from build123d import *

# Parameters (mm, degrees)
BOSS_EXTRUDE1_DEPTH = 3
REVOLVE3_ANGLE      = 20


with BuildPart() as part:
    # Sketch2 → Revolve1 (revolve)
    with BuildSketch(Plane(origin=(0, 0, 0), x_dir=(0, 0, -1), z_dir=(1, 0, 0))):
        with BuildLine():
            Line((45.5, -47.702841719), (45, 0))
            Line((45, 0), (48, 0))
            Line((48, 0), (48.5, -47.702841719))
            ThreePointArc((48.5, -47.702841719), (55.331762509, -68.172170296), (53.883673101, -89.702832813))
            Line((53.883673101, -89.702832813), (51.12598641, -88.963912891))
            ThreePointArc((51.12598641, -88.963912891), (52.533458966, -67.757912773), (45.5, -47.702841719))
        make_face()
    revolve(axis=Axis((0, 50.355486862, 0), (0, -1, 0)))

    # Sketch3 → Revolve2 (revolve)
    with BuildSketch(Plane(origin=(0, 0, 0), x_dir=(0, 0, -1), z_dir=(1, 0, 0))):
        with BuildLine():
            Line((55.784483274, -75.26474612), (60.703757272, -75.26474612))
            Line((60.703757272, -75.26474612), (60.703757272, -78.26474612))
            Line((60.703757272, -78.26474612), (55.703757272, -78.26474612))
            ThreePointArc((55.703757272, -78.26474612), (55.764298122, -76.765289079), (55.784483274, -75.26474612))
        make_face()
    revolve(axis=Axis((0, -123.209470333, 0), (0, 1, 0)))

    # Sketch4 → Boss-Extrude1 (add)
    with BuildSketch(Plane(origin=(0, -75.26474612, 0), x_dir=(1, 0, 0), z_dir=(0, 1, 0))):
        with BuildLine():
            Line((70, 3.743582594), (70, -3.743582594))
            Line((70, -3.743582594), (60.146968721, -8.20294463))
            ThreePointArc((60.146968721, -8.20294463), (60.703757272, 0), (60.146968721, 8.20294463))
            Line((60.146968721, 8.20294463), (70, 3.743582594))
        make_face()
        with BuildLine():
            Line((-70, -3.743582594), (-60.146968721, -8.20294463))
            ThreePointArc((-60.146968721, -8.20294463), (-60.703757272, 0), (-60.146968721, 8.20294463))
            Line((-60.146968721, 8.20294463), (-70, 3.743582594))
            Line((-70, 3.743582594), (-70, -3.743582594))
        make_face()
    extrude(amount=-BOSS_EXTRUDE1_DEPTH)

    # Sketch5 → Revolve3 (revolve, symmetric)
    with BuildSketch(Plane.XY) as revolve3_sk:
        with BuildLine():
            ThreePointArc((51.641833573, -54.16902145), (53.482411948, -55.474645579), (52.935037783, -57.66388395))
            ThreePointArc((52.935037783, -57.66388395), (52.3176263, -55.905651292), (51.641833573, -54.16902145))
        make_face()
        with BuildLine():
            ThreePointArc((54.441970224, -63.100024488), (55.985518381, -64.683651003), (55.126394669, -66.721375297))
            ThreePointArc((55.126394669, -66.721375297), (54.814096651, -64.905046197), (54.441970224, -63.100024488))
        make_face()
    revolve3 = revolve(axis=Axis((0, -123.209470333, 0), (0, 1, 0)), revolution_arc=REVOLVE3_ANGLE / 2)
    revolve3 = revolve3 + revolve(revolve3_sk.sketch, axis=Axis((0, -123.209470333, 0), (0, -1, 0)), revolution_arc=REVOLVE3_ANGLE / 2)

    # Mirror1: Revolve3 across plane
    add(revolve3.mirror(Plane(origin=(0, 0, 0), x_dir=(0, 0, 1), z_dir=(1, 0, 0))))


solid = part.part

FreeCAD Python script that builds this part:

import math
import FreeCAD as App
import Part
import Sketcher
from FreeCAD import Vector
Q = App.Units.Quantity

doc = App.newDocument("Part")
body = doc.addObject("PartDesign::Body", "Body")

# Sketch on YZ plane
sketch1 = body.newObject("Sketcher::SketchObject", "Sketch")
sketch1.AttachmentSupport = (doc.getObject("YZ_Plane"), [""])
sketch1.MapMode = "FlatFace"
sketch1.addGeometry([
    Part.LineSegment(Vector(0, -45, 0), Vector(-47.7, -45.5, 0)),  # 0
    Part.ArcOfCircle(Part.Circle(Vector(-74.9, 0, 0), Vector(0, 0, 1), 53), math.radians(-105), math.radians(-59)),  # 1
    Part.LineSegment(Vector(-89, -51.1, 0), Vector(-89.7, -53.9, 0)),  # 2
    Part.ArcOfCircle(Part.Circle(Vector(-75.3, 0, 0), Vector(0, 0, 1), 55.8), math.radians(-105), math.radians(-60)),  # 3
    Part.LineSegment(Vector(-47.7, -48.5, 0), Vector(0, -48, 0)),  # 4
    Part.LineSegment(Vector(0, -48, 0), Vector(0, -45, 0)),  # 5
], False)
sketch1.addConstraint([
    Sketcher.Constraint("Coincident", 0, 2, 1, 2),
    Sketcher.Constraint("Coincident", 1, 1, 2, 1),
    Sketcher.Constraint("Coincident", 2, 2, 3, 1),
    Sketcher.Constraint("Coincident", 3, 2, 4, 1),
    Sketcher.Constraint("Coincident", 4, 2, 5, 1),
    Sketcher.Constraint("Coincident", 5, 2, 0, 1),
    Sketcher.Constraint("Vertical", 5),
    Sketcher.Constraint("PointOnObject", 1, 3, -1),
    Sketcher.Constraint("PointOnObject", 3, 3, -1),
    Sketcher.Constraint("PointOnObject", 4, 2, -2),
    Sketcher.Constraint("Parallel", 0, 4),
    Sketcher.Constraint("Vertical", 0, 2, 3, 2),
    Sketcher.Constraint("DistanceY", 5, 1, 5, 2, Q("3 mm")),
    Sketcher.Constraint("Angle", 2, Q("-105 deg")),
    Sketcher.Constraint("DistanceY", 4, 2, -1, 1, Q("48 mm")),
    Sketcher.Constraint("DistanceY", 0, 2, -1, 1, Q("45.5 mm")),
    Sketcher.Constraint("Radius", 1, Q("53.01955 mm")),
    Sketcher.Constraint("Radius", 3, Q("55.784483 mm")),
    Sketcher.Constraint("DistanceX", 1, 3, -1, 1, Q("74.9209 mm")),
    Sketcher.Constraint("DistanceX", 1, 1, 0, 2, Q("41.261071 mm")),
])
revolution = body.newObject("PartDesign::Revolution", "Revolution")
revolution.Profile = sketch1
revolution.ReferenceAxis = (sketch1, ["H_Axis"])
revolution.Angle = 360

# Sketch on YZ plane
sketch2 = body.newObject("Sketcher::SketchObject", "Sketch001")
sketch2.AttachmentSupport = (doc.getObject("YZ_Plane"), [""])
sketch2.MapMode = "FlatFace"
sketch2.addGeometry([
    Part.LineSegment(Vector(-75.3, -60.7, 0), Vector(-75.3, -55.8, 0)),
    Part.ArcOfCircle(Part.Circle(Vector(-75.3, 0, 0), Vector(0, 0, 1), 55.8), math.radians(-93.08), math.radians(-90)),
    Part.LineSegment(Vector(-78.3, -55.7, 0), Vector(-78.3, -60.7, 0)),
    Part.LineSegment(Vector(-78.3, -60.7, 0), Vector(-75.3, -60.7, 0)),
], False)
sketch2.addConstraint([
    Sketcher.Constraint("Coincident", 0, 2, 1, 2),
    Sketcher.Constraint("Coincident", 1, 1, 2, 1),
    Sketcher.Constraint("Coincident", 2, 2, 3, 1),
    Sketcher.Constraint("Coincident", 3, 2, 0, 1),
    Sketcher.Constraint("Vertical", 0),
    Sketcher.Constraint("Vertical", 2),
    Sketcher.Constraint("Horizontal", 3),
    Sketcher.Constraint("PointOnObject", 1, 3, -1),
    Sketcher.Constraint("Vertical", 1, 3, 0, 2),
    Sketcher.Constraint("DistanceX", 3, 1, 3, 2, Q("3 mm")),
    Sketcher.Constraint("DistanceY", 2, 2, 2, 1, Q("5 mm")),
    Sketcher.Constraint("Radius", 1, Q("55.784483 mm")),
    Sketcher.Constraint("DistanceX", 1, 3, -1, 1, Q("75.264746 mm")),
])
revolution2 = body.newObject("PartDesign::Revolution", "Revolution001")
revolution2.Profile = sketch2
revolution2.ReferenceAxis = (sketch2, ["H_Axis"])
revolution2.Angle = 360

# Sketch on XZ plane
sketch3 = body.newObject("Sketcher::SketchObject", "Sketch002")
sketch3.AttachmentSupport = (doc.getObject("XZ_Plane"), [""])
sketch3.MapMode = "FlatFace"
sketch3.AttachmentOffset = App.Placement(Vector(0, 0, 75.264746), App.Rotation())
sketch3.addGeometry([
    Part.LineSegment(Vector(70, 4, 0), Vector(70, -4, 0)),  # 0
    Part.LineSegment(Vector(70, -4, 0), Vector(60, -8, 0)),  # 1
    Part.ArcOfCircle(Part.Circle(Vector(0, 0, 0), Vector(0, 0, 1), 61), math.radians(-7.77), math.radians(7.77)),  # 2
    Part.LineSegment(Vector(60, 8, 0), Vector(70, 4, 0)),  # 3
    Part.LineSegment(Vector(-70, 4, 0), Vector(-60, 8, 0)),  # 4
    Part.ArcOfCircle(Part.Circle(Vector(0, 0, 0), Vector(0, 0, 1), 61), math.radians(172.23), math.radians(187.77)),  # 5
    Part.LineSegment(Vector(-60, -8, 0), Vector(-70, -4, 0)),  # 6
    Part.LineSegment(Vector(-70, -4, 0), Vector(-70, 4, 0)),  # 7
], False)
sketch3.addConstraint([
    Sketcher.Constraint("Coincident", 0, 2, 1, 1),
    Sketcher.Constraint("Coincident", 1, 2, 2, 1),
    Sketcher.Constraint("Coincident", 2, 2, 3, 1),
    Sketcher.Constraint("Coincident", 3, 2, 0, 1),
    Sketcher.Constraint("Coincident", 4, 2, 5, 1),
    Sketcher.Constraint("Coincident", 5, 2, 6, 1),
    Sketcher.Constraint("Coincident", 6, 2, 7, 1),
    Sketcher.Constraint("Coincident", 7, 2, 4, 1),
    Sketcher.Constraint("Vertical", 0),
    Sketcher.Constraint("Vertical", 7),
    Sketcher.Constraint("Coincident", 2, 3, -1, 1),
    Sketcher.Constraint("Coincident", 5, 3, -1, 1),
    Sketcher.Constraint("Equal", 2, 5),
    Sketcher.Constraint("Symmetric", 3, 2, 6, 2, -1, 1),
    Sketcher.Constraint("Parallel", 1, 4),
    Sketcher.Constraint("Parallel", 3, 6),
    Sketcher.Constraint("Horizontal", 2, 2, 4, 2),
    Sketcher.Constraint("Horizontal", 1, 2, 5, 2),
    Sketcher.Constraint("Horizontal", 0, 2, 6, 2),
    Sketcher.Constraint("DistanceX", -1, 1, 0, 2, Q("70 mm")),
    Sketcher.Constraint("Radius", 2, Q("60.703757 mm")),
    Sketcher.Constraint("Distance", 1, Q("10.815181 mm")),
    Sketcher.Constraint("DistanceY", 0, 2, 0, 1, Q("7.487165 mm")),
])
pad1 = body.newObject("PartDesign::Pad", "Pad")
pad1.Profile = sketch3
pad1.Length = 3

# Sketch on XY plane
sketch4 = body.newObject("Sketcher::SketchObject", "Sketch003")
sketch4.AttachmentSupport = (doc.getObject("XY_Plane"), [""])
sketch4.MapMode = "FlatFace"
sketch4.addGeometry([
    Part.ArcOfCircle(Part.Circle(Vector(51.6, -56.2, 0), Vector(0, 0, 1), 2), math.radians(-48), math.radians(89)),
    Part.ArcOfCircle(Part.Circle(Vector(0, -75.3, 0), Vector(0, 0, 1), 55.8), math.radians(18.39), math.radians(22.22)),
    Part.ArcOfCircle(Part.Circle(Vector(54, -65.1, 0), Vector(0, 0, 1), 2), math.radians(-56), math.radians(78)),
    Part.ArcOfCircle(Part.Circle(Vector(0, -75.3, 0), Vector(0, 0, 1), 55.8), math.radians(8.81), math.radians(12.6)),
], False)
sketch4.addConstraint([
    Sketcher.Constraint("Coincident", 0, 1, 1, 1),
    Sketcher.Constraint("Coincident", 1, 2, 0, 2),
    Sketcher.Constraint("Coincident", 2, 1, 3, 1),
    Sketcher.Constraint("Coincident", 3, 2, 2, 2),
    Sketcher.Constraint("Coincident", 3, 3, 1, 3),
    Sketcher.Constraint("Equal", 0, 2),
    Sketcher.Constraint("PointOnObject", 1, 3, -2),
    Sketcher.Constraint("Radius", 0, Q("2 mm")),
    Sketcher.Constraint("Radius", 1, Q("55.784482 mm")),
    Sketcher.Constraint("Radius", 3, Q("55.784485 mm")),
    Sketcher.Constraint("DistanceX", -1, 1, 2, 3, Q("54.020309 mm")),
    Sketcher.Constraint("DistanceY", 2, 3, -1, 1, Q("65.05507 mm")),
    Sketcher.Constraint("DistanceY", 1, 2, -1, 1, Q("54.169021 mm")),
    Sketcher.Constraint("DistanceX", -1, 1, 3, 2, Q("54.44197 mm")),
    Sketcher.Constraint("DistanceX", 0, 3, 0, 1, Q("1.328331 mm")),
])
revolution3 = body.newObject("PartDesign::Revolution", "Revolution002")
revolution3.Profile = sketch4
revolution3.ReferenceAxis = (sketch4, ["V_Axis"])
revolution3.Angle = 10

# Sketch on XY plane
sketch5 = body.newObject("Sketcher::SketchObject", "Sketch004")
sketch5.AttachmentSupport = (doc.getObject("XY_Plane"), [""])
sketch5.MapMode = "FlatFace"
sketch5.addGeometry([
    Part.ArcOfCircle(Part.Circle(Vector(51.6, -56.2, 0), Vector(0, 0, 1), 2), math.radians(-48), math.radians(89)),
    Part.ArcOfCircle(Part.Circle(Vector(0, -75.3, 0), Vector(0, 0, 1), 55.8), math.radians(18.39), math.radians(22.22)),
    Part.ArcOfCircle(Part.Circle(Vector(54, -65.1, 0), Vector(0, 0, 1), 2), math.radians(-56), math.radians(78)),
    Part.ArcOfCircle(Part.Circle(Vector(0, -75.3, 0), Vector(0, 0, 1), 55.8), math.radians(8.81), math.radians(12.6)),
], False)
sketch5.addConstraint([
    Sketcher.Constraint("Coincident", 0, 1, 1, 1),
    Sketcher.Constraint("Coincident", 1, 2, 0, 2),
    Sketcher.Constraint("Coincident", 2, 1, 3, 1),
    Sketcher.Constraint("Coincident", 3, 2, 2, 2),
    Sketcher.Constraint("Coincident", 3, 3, 1, 3),
    Sketcher.Constraint("Equal", 0, 2),
    Sketcher.Constraint("PointOnObject", 1, 3, -2),
    Sketcher.Constraint("Radius", 0, Q("2 mm")),
    Sketcher.Constraint("Radius", 1, Q("55.784482 mm")),
    Sketcher.Constraint("Radius", 3, Q("55.784485 mm")),
    Sketcher.Constraint("DistanceX", -1, 1, 2, 3, Q("54.020309 mm")),
    Sketcher.Constraint("DistanceY", 2, 3, -1, 1, Q("65.05507 mm")),
    Sketcher.Constraint("DistanceY", 1, 2, -1, 1, Q("54.169021 mm")),
    Sketcher.Constraint("DistanceX", -1, 1, 3, 2, Q("54.44197 mm")),
    Sketcher.Constraint("DistanceX", 0, 3, 0, 1, Q("1.328331 mm")),
])
revolution4 = body.newObject("PartDesign::Revolution", "Revolution003")
revolution4.Profile = sketch5
revolution4.ReferenceAxis = (sketch5, ["V_Axis"])
revolution4.Angle = 10
revolution4.Reversed = True
doc.recompute()

mirrored = body.newObject("PartDesign::Mirrored", "Mirrored")
mirrored.Originals = [revolution3, revolution4]
mirrored.MirrorPlane = (doc.getObject("YZ_Plane"), [""])
body.Tip = mirrored

doc.recompute()
